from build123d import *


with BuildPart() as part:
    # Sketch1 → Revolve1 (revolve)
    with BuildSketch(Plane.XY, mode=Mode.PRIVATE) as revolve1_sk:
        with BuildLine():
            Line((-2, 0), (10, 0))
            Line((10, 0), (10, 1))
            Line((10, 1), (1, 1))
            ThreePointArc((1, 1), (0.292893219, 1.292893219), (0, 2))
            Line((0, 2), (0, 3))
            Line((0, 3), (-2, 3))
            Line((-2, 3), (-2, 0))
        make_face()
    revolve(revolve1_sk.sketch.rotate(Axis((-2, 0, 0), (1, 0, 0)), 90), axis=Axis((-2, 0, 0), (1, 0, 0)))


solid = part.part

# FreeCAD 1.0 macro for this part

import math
import FreeCAD as App
import Part
import Sketcher
Q = App.Units.Quantity

doc = App.newDocument("Part")
params = doc.addObject("Spreadsheet::Sheet", "Params")
for row, (alias, value) in enumerate([
    ("sketch1_radius", "1 mm"),
    ("sketch1_width", "12 mm"),
    ("sketch1_width2", "9 mm"),
    ("sketch1_height", "1 mm"),
    ("revolution_angle", "360 deg"),
], start=1):
    params.set(f"A{row}", alias)
    params.set(f"B{row}", "=" + value)
    params.setAlias(f"B{row}", alias)

body = doc.addObject("PartDesign::Body", "Body")

sketch1 = body.newObject("Sketcher::SketchObject", "Sketch")
sketch1.AttachmentSupport = (doc.getObject("XY_Plane"), [""])
sketch1.MapMode = "FlatFace"
sketch1.addGeometry([
    Part.LineSegment(App.Vector(-2, 0, 0), App.Vector(10, 0, 0)),
    Part.LineSegment(App.Vector(10, 0, 0), App.Vector(10, 1, 0)),
    Part.LineSegment(App.Vector(10, 1, 0), App.Vector(1, 1, 0)),
    Part.ArcOfCircle(Part.Circle(App.Vector(1, 2, 0), App.Vector(0, 0, 1), 1), math.radians(-180), math.radians(-90)),
    Part.LineSegment(App.Vector(0, 2, 0), App.Vector(0, 3, 0)),
    Part.LineSegment(App.Vector(0, 3, 0), App.Vector(-2, 3, 0)),
    Part.LineSegment(App.Vector(-2, 3, 0), App.Vector(-2, 0, 0)),
], False)
sketch1.addConstraint([
    Sketcher.Constraint("Coincident", 0, 2, 1, 1),
    Sketcher.Constraint("Coincident", 1, 2, 2, 1),
    Sketcher.Constraint("Tangent", 2, 2, 3, 2),
    Sketcher.Constraint("Tangent", 3, 1, 4, 1),
    Sketcher.Constraint("Coincident", 4, 2, 5, 1),
    Sketcher.Constraint("Coincident", 5, 2, 6, 1),
    Sketcher.Constraint("Coincident", 6, 2, 0, 1),
    Sketcher.Constraint("Horizontal", 0),
    Sketcher.Constraint("Vertical", 1),
    Sketcher.Constraint("Horizontal", 2),
    Sketcher.Constraint("Vertical", 4),
    Sketcher.Constraint("Horizontal", 5),
    Sketcher.Constraint("Vertical", 6),
    Sketcher.Constraint("PointOnObject", 0, 2, -1),
    Sketcher.Constraint("PointOnObject", 3, 1, -2),
    Sketcher.Constraint("Equal", 1, 4),
    Sketcher.Constraint("Radius", 3, Q("1 mm")),
    Sketcher.Constraint("DistanceX", 0, 1, 0, 2, Q("12 mm")),
    Sketcher.Constraint("DistanceX", 2, 2, 2, 1, Q("9 mm")),
    Sketcher.Constraint("DistanceY", 1, 1, 1, 2, Q("1 mm")),
])
sketch1.setExpression("Constraints[16]", "Params.sketch1_radius")
sketch1.setExpression("Constraints[17]", "Params.sketch1_width")
sketch1.setExpression("Constraints[18]", "Params.sketch1_width2")
sketch1.setExpression("Constraints[19]", "Params.sketch1_height")
revolution = body.newObject("PartDesign::Revolution", "Revolution")
revolution.Profile = sketch1
revolution.ReferenceAxis = (sketch1, ["H_Axis"])
revolution.setExpression("Angle", "Params.revolution_angle")

doc.recompute()
